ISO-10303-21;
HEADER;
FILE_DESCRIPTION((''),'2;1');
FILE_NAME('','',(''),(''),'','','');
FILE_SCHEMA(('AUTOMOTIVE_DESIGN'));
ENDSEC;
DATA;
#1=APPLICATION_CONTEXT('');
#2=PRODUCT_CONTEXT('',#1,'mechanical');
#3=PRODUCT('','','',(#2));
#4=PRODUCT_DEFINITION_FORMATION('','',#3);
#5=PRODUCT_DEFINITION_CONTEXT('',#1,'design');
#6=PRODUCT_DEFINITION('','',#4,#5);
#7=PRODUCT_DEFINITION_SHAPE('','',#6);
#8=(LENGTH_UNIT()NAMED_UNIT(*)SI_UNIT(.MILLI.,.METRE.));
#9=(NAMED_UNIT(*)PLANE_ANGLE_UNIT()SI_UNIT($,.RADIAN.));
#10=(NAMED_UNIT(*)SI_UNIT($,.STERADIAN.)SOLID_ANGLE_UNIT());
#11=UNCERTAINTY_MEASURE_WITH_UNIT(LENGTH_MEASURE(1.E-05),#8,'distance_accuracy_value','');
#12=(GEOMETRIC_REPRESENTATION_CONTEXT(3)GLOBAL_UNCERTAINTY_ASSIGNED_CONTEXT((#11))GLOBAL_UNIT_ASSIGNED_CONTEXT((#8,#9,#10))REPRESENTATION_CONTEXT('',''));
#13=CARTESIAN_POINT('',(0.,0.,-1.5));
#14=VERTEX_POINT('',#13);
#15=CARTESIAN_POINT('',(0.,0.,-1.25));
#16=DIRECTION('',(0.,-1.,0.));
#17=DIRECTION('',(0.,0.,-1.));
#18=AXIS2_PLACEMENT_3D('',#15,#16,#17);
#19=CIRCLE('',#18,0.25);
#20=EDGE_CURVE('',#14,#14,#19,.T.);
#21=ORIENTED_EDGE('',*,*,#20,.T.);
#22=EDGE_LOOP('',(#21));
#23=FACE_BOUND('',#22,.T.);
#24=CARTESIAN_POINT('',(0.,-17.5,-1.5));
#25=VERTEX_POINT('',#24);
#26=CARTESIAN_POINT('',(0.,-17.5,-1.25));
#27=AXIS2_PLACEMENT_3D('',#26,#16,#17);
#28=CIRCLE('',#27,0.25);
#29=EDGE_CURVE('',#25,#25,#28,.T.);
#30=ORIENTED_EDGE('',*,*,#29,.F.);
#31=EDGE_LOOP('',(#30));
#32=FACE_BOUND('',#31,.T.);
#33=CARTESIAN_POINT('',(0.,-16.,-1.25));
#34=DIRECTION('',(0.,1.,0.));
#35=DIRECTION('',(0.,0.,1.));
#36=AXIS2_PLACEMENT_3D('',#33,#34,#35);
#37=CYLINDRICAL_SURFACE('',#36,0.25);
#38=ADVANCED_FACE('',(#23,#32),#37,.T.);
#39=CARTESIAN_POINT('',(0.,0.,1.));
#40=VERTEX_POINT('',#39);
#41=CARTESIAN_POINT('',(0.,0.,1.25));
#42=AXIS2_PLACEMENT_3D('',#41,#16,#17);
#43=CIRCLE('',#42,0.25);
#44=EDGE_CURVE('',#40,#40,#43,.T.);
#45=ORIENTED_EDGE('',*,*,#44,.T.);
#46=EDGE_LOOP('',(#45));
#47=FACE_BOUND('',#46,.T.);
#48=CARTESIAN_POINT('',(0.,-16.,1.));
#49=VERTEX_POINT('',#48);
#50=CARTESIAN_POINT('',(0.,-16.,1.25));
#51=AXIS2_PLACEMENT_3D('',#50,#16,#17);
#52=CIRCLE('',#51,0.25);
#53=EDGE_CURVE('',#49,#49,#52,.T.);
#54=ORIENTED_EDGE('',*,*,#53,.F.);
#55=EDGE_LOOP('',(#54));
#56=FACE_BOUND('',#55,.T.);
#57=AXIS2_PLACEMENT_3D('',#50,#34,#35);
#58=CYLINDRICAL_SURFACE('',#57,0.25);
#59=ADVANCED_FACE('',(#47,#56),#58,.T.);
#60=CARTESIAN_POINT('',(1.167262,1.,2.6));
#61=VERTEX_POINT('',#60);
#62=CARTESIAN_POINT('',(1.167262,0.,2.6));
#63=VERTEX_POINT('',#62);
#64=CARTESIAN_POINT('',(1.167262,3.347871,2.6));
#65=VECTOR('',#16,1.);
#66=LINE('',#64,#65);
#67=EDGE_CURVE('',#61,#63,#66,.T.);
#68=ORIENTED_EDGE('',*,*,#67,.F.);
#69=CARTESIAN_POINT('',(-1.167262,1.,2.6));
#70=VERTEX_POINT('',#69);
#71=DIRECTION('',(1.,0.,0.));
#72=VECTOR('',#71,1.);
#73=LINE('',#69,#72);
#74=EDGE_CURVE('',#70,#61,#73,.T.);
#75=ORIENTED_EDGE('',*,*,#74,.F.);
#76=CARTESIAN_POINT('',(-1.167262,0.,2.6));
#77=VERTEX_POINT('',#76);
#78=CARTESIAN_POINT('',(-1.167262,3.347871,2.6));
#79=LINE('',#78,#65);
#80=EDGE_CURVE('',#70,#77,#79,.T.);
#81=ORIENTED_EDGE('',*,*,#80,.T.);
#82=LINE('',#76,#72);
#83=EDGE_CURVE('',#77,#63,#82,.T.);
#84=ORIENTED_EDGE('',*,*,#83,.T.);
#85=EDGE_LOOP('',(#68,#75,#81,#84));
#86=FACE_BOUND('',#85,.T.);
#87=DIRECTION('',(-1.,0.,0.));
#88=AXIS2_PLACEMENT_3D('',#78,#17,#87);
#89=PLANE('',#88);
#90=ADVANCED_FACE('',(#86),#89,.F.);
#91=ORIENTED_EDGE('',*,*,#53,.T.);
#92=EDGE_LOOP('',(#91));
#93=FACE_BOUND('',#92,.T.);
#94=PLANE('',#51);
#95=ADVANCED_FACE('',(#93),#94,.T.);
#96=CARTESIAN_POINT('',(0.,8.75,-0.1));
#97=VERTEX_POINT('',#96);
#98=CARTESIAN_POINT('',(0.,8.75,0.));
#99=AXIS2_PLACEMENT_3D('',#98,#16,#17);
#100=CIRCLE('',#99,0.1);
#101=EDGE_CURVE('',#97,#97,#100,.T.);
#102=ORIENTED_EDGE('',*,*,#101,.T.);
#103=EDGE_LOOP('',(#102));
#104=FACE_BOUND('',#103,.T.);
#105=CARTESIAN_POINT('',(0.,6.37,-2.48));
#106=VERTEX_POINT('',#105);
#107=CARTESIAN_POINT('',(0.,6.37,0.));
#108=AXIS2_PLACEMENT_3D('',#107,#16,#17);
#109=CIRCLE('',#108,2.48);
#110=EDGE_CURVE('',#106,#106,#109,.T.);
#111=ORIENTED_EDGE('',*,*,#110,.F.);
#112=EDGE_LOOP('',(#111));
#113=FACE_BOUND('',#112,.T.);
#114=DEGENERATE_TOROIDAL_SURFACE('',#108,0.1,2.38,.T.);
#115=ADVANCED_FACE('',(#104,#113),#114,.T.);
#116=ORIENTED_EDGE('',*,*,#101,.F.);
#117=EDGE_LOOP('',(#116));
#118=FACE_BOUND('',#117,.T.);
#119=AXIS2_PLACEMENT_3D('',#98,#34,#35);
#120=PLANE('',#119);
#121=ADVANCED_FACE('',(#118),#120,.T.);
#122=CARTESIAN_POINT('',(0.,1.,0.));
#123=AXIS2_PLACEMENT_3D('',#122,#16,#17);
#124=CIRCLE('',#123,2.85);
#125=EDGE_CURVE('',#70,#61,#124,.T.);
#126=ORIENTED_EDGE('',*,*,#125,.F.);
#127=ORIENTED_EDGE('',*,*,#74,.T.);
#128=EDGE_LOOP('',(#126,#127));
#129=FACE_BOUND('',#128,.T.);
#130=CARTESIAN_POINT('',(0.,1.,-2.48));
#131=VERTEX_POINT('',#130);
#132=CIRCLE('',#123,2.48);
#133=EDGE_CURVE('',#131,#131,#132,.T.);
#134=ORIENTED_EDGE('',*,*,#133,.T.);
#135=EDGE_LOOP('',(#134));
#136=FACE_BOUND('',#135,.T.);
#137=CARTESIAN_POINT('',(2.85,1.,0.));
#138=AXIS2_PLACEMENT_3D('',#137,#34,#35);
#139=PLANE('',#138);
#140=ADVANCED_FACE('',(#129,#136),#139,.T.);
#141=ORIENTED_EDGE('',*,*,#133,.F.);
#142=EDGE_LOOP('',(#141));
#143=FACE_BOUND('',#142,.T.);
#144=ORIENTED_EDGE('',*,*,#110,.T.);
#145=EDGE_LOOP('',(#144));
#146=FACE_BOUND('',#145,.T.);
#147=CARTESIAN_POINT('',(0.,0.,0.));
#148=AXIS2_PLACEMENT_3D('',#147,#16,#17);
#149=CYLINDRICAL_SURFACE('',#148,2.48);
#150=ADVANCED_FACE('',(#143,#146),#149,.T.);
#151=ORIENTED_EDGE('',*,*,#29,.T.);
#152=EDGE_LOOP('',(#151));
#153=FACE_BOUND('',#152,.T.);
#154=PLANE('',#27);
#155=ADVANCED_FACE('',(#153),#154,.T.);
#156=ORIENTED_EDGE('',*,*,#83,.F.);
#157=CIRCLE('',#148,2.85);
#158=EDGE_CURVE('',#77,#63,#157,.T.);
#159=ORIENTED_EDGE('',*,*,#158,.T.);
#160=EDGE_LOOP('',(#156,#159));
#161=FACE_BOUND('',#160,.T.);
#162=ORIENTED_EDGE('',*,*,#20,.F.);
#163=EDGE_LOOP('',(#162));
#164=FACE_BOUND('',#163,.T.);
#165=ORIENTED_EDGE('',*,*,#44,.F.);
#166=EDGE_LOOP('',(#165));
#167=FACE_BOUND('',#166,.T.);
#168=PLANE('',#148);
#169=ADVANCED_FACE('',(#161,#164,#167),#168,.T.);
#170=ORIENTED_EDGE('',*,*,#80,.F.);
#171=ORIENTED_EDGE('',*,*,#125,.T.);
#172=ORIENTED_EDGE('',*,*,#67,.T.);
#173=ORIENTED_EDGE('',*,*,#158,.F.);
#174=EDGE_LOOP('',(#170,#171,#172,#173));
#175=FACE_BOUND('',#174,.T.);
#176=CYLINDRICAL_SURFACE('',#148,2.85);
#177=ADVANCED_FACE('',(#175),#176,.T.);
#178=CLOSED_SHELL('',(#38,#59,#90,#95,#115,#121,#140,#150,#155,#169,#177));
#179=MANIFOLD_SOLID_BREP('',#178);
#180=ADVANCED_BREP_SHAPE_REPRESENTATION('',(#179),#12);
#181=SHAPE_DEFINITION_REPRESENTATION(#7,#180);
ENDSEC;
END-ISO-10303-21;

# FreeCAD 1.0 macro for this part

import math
import FreeCAD as App
import Part
import Sketcher
Q = App.Units.Quantity

doc = App.newDocument("Part")
body = doc.addObject("PartDesign::Body", "Body")

sketch1 = body.newObject("Sketcher::SketchObject", "Sketch")
sketch1.AttachmentSupport = (doc.getObject("XY_Plane"), [""])
sketch1.MapMode = "FlatFace"
sketch1.addGeometry(Part.LineSegment(App.Vector(0, 8.75, 0), App.Vector(0, 0, 0)), False)
sketch1.addGeometry(Part.LineSegment(App.Vector(0, 0, 0), App.Vector(2.85, 0, 0)), False)
sketch1.addGeometry(Part.LineSegment(App.Vector(2.85, 0, 0), App.Vector(2.85, 1, 0)), False)
sketch1.addGeometry(Part.LineSegment(App.Vector(2.85, 1, 0), App.Vector(2.48, 1, 0)), False)
sketch1.addGeometry(Part.LineSegment(App.Vector(2.48, 1, 0), App.Vector(2.48, 6.37, 0)), False)
sketch1.addGeometry(Part.ArcOfCircle(Part.Circle(App.Vector(0.1, 6.37, 0), App.Vector(0, 0, 1), 2.38), math.radians(0), math.radians(90)), False)
sketch1.addGeometry(Part.LineSegment(App.Vector(0.1, 8.75, 0), App.Vector(0, 8.75, 0)), False)
sketch1.addConstraint(Sketcher.Constraint("Coincident", 0, 2, 1, 1))
sketch1.addConstraint(Sketcher.Constraint("Coincident", 1, 2, 2, 1))
sketch1.addConstraint(Sketcher.Constraint("Coincident", 2, 2, 3, 1))
sketch1.addConstraint(Sketcher.Constraint("Coincident", 3, 2, 4, 1))
sketch1.addConstraint(Sketcher.Constraint("Tangent", 4, 2, 5, 1))
sketch1.addConstraint(Sketcher.Constraint("Tangent", 5, 2, 6, 1))
sketch1.addConstraint(Sketcher.Constraint("Coincident", 6, 2, 0, 1))
sketch1.addConstraint(Sketcher.Constraint("Vertical", 0))
sketch1.addConstraint(Sketcher.Constraint("Horizontal", 1))
sketch1.addConstraint(Sketcher.Constraint("Vertical", 2))
sketch1.addConstraint(Sketcher.Constraint("Horizontal", 3))
sketch1.addConstraint(Sketcher.Constraint("Vertical", 4))
sketch1.addConstraint(Sketcher.Constraint("Horizontal", 6))
sketch1.addConstraint(Sketcher.Constraint("Coincident", 0, 2, -1, 1))
sketch1.addConstraint(Sketcher.Constraint("DistanceY", 2, 1, 2, 2, Q("1 mm")))
sketch1.addConstraint(Sketcher.Constraint("Radius", 5, Q("2.38 mm")))
sketch1.addConstraint(Sketcher.Constraint("DistanceX", 6, 2, 6, 1, Q("0.1 mm")))
sketch1.addConstraint(Sketcher.Constraint("DistanceX", 1, 1, 1, 2, Q("2.85 mm")))
sketch1.addConstraint(Sketcher.Constraint("DistanceY", 0, 2, 0, 1, Q("8.75 mm")))
revolution = body.newObject("PartDesign::Revolution", "Revolution")
revolution.Profile = sketch1
revolution.ReferenceAxis = (sketch1, ["V_Axis"])
revolution.Angle = 360

sketch2 = body.newObject("Sketcher::SketchObject", "Sketch001")
sketch2.AttachmentSupport = (doc.getObject("XZ_Plane"), [""])
sketch2.MapMode = "FlatFace"
sketch2.addGeometry(Part.LineSegment(App.Vector(-1.2, 2.6, 0), App.Vector(1.2, 2.6, 0)), False)
sketch2.addGeometry(Part.ArcOfCircle(Part.Circle(App.Vector(0, 0, 0), App.Vector(0, 0, 1), 2.9), math.radians(66), math.radians(114)), False)
sketch2.addConstraint(Sketcher.Constraint("Coincident", 0, 1, 1, 2))
sketch2.addConstraint(Sketcher.Constraint("Coincident", 1, 1, 0, 2))
sketch2.addConstraint(Sketcher.Constraint("Horizontal", 0))
sketch2.addConstraint(Sketcher.Constraint("Coincident", 1, 3, -1, 1))
sketch2.addConstraint(Sketcher.Constraint("Radius", 1, Q("2.85 mm")))
sketch2.addConstraint(Sketcher.Constraint("DistanceY", -1, 1, 0, 1, Q("2.6 mm")))
pocket1 = body.newObject("PartDesign::Pocket", "Pocket")
pocket1.Profile = sketch2
pocket1.Length = 1

sketch3 = body.newObject("Sketcher::SketchObject", "Sketch002")
sketch3.AttachmentSupport = (doc.getObject("XZ_Plane"), [""])
sketch3.MapMode = "FlatFace"
sketch3.addGeometry(Part.Circle(App.Vector(0, -1.25, 0), App.Vector(0, 0, 1), 0.25), False)
sketch3.addGeometry(Part.Circle(App.Vector(0, 1.25, 0), App.Vector(0, 0, 1), 0.25), False)
sketch3.addConstraint(Sketcher.Constraint("Equal", 0, 1))
sketch3.addConstraint(Sketcher.Constraint("Symmetric", 0, 3, 1, 3, -1, 1))
sketch3.addConstraint(Sketcher.Constraint("PointOnObject", 0, 3, -2))
sketch3.addConstraint(Sketcher.Constraint("Diameter", 0, Q("0.5 mm")))
sketch3.addConstraint(Sketcher.Constraint("DistanceY", 0, 3, 1, 3, Q("2.5 mm")))
pad1 = body.newObject("PartDesign::Pad", "Pad")
pad1.Profile = sketch3
pad1.Length = 16

sketch4 = body.newObject("Sketcher::SketchObject", "Sketch003")
sketch4.AttachmentSupport = (doc.getObject("XZ_Plane"), [""])
sketch4.MapMode = "FlatFace"
sketch4.AttachmentOffset = App.Placement(App.Vector(0, 0, 16), App.Rotation())
sketch4.addGeometry(Part.Circle(App.Vector(0, -1.25, 0), App.Vector(0, 0, 1), 0.25), False)
sketch4.addConstraint(Sketcher.Constraint("PointOnObject", 0, 3, -2))
sketch4.addConstraint(Sketcher.Constraint("Diameter", 0, Q("0.5 mm")))
sketch4.addConstraint(Sketcher.Constraint("DistanceY", 0, 3, -1, 1, Q("1.25 mm")))
pad2 = body.newObject("PartDesign::Pad", "Pad001")
pad2.Profile = sketch4
pad2.Length = 1.5

doc.recompute()
